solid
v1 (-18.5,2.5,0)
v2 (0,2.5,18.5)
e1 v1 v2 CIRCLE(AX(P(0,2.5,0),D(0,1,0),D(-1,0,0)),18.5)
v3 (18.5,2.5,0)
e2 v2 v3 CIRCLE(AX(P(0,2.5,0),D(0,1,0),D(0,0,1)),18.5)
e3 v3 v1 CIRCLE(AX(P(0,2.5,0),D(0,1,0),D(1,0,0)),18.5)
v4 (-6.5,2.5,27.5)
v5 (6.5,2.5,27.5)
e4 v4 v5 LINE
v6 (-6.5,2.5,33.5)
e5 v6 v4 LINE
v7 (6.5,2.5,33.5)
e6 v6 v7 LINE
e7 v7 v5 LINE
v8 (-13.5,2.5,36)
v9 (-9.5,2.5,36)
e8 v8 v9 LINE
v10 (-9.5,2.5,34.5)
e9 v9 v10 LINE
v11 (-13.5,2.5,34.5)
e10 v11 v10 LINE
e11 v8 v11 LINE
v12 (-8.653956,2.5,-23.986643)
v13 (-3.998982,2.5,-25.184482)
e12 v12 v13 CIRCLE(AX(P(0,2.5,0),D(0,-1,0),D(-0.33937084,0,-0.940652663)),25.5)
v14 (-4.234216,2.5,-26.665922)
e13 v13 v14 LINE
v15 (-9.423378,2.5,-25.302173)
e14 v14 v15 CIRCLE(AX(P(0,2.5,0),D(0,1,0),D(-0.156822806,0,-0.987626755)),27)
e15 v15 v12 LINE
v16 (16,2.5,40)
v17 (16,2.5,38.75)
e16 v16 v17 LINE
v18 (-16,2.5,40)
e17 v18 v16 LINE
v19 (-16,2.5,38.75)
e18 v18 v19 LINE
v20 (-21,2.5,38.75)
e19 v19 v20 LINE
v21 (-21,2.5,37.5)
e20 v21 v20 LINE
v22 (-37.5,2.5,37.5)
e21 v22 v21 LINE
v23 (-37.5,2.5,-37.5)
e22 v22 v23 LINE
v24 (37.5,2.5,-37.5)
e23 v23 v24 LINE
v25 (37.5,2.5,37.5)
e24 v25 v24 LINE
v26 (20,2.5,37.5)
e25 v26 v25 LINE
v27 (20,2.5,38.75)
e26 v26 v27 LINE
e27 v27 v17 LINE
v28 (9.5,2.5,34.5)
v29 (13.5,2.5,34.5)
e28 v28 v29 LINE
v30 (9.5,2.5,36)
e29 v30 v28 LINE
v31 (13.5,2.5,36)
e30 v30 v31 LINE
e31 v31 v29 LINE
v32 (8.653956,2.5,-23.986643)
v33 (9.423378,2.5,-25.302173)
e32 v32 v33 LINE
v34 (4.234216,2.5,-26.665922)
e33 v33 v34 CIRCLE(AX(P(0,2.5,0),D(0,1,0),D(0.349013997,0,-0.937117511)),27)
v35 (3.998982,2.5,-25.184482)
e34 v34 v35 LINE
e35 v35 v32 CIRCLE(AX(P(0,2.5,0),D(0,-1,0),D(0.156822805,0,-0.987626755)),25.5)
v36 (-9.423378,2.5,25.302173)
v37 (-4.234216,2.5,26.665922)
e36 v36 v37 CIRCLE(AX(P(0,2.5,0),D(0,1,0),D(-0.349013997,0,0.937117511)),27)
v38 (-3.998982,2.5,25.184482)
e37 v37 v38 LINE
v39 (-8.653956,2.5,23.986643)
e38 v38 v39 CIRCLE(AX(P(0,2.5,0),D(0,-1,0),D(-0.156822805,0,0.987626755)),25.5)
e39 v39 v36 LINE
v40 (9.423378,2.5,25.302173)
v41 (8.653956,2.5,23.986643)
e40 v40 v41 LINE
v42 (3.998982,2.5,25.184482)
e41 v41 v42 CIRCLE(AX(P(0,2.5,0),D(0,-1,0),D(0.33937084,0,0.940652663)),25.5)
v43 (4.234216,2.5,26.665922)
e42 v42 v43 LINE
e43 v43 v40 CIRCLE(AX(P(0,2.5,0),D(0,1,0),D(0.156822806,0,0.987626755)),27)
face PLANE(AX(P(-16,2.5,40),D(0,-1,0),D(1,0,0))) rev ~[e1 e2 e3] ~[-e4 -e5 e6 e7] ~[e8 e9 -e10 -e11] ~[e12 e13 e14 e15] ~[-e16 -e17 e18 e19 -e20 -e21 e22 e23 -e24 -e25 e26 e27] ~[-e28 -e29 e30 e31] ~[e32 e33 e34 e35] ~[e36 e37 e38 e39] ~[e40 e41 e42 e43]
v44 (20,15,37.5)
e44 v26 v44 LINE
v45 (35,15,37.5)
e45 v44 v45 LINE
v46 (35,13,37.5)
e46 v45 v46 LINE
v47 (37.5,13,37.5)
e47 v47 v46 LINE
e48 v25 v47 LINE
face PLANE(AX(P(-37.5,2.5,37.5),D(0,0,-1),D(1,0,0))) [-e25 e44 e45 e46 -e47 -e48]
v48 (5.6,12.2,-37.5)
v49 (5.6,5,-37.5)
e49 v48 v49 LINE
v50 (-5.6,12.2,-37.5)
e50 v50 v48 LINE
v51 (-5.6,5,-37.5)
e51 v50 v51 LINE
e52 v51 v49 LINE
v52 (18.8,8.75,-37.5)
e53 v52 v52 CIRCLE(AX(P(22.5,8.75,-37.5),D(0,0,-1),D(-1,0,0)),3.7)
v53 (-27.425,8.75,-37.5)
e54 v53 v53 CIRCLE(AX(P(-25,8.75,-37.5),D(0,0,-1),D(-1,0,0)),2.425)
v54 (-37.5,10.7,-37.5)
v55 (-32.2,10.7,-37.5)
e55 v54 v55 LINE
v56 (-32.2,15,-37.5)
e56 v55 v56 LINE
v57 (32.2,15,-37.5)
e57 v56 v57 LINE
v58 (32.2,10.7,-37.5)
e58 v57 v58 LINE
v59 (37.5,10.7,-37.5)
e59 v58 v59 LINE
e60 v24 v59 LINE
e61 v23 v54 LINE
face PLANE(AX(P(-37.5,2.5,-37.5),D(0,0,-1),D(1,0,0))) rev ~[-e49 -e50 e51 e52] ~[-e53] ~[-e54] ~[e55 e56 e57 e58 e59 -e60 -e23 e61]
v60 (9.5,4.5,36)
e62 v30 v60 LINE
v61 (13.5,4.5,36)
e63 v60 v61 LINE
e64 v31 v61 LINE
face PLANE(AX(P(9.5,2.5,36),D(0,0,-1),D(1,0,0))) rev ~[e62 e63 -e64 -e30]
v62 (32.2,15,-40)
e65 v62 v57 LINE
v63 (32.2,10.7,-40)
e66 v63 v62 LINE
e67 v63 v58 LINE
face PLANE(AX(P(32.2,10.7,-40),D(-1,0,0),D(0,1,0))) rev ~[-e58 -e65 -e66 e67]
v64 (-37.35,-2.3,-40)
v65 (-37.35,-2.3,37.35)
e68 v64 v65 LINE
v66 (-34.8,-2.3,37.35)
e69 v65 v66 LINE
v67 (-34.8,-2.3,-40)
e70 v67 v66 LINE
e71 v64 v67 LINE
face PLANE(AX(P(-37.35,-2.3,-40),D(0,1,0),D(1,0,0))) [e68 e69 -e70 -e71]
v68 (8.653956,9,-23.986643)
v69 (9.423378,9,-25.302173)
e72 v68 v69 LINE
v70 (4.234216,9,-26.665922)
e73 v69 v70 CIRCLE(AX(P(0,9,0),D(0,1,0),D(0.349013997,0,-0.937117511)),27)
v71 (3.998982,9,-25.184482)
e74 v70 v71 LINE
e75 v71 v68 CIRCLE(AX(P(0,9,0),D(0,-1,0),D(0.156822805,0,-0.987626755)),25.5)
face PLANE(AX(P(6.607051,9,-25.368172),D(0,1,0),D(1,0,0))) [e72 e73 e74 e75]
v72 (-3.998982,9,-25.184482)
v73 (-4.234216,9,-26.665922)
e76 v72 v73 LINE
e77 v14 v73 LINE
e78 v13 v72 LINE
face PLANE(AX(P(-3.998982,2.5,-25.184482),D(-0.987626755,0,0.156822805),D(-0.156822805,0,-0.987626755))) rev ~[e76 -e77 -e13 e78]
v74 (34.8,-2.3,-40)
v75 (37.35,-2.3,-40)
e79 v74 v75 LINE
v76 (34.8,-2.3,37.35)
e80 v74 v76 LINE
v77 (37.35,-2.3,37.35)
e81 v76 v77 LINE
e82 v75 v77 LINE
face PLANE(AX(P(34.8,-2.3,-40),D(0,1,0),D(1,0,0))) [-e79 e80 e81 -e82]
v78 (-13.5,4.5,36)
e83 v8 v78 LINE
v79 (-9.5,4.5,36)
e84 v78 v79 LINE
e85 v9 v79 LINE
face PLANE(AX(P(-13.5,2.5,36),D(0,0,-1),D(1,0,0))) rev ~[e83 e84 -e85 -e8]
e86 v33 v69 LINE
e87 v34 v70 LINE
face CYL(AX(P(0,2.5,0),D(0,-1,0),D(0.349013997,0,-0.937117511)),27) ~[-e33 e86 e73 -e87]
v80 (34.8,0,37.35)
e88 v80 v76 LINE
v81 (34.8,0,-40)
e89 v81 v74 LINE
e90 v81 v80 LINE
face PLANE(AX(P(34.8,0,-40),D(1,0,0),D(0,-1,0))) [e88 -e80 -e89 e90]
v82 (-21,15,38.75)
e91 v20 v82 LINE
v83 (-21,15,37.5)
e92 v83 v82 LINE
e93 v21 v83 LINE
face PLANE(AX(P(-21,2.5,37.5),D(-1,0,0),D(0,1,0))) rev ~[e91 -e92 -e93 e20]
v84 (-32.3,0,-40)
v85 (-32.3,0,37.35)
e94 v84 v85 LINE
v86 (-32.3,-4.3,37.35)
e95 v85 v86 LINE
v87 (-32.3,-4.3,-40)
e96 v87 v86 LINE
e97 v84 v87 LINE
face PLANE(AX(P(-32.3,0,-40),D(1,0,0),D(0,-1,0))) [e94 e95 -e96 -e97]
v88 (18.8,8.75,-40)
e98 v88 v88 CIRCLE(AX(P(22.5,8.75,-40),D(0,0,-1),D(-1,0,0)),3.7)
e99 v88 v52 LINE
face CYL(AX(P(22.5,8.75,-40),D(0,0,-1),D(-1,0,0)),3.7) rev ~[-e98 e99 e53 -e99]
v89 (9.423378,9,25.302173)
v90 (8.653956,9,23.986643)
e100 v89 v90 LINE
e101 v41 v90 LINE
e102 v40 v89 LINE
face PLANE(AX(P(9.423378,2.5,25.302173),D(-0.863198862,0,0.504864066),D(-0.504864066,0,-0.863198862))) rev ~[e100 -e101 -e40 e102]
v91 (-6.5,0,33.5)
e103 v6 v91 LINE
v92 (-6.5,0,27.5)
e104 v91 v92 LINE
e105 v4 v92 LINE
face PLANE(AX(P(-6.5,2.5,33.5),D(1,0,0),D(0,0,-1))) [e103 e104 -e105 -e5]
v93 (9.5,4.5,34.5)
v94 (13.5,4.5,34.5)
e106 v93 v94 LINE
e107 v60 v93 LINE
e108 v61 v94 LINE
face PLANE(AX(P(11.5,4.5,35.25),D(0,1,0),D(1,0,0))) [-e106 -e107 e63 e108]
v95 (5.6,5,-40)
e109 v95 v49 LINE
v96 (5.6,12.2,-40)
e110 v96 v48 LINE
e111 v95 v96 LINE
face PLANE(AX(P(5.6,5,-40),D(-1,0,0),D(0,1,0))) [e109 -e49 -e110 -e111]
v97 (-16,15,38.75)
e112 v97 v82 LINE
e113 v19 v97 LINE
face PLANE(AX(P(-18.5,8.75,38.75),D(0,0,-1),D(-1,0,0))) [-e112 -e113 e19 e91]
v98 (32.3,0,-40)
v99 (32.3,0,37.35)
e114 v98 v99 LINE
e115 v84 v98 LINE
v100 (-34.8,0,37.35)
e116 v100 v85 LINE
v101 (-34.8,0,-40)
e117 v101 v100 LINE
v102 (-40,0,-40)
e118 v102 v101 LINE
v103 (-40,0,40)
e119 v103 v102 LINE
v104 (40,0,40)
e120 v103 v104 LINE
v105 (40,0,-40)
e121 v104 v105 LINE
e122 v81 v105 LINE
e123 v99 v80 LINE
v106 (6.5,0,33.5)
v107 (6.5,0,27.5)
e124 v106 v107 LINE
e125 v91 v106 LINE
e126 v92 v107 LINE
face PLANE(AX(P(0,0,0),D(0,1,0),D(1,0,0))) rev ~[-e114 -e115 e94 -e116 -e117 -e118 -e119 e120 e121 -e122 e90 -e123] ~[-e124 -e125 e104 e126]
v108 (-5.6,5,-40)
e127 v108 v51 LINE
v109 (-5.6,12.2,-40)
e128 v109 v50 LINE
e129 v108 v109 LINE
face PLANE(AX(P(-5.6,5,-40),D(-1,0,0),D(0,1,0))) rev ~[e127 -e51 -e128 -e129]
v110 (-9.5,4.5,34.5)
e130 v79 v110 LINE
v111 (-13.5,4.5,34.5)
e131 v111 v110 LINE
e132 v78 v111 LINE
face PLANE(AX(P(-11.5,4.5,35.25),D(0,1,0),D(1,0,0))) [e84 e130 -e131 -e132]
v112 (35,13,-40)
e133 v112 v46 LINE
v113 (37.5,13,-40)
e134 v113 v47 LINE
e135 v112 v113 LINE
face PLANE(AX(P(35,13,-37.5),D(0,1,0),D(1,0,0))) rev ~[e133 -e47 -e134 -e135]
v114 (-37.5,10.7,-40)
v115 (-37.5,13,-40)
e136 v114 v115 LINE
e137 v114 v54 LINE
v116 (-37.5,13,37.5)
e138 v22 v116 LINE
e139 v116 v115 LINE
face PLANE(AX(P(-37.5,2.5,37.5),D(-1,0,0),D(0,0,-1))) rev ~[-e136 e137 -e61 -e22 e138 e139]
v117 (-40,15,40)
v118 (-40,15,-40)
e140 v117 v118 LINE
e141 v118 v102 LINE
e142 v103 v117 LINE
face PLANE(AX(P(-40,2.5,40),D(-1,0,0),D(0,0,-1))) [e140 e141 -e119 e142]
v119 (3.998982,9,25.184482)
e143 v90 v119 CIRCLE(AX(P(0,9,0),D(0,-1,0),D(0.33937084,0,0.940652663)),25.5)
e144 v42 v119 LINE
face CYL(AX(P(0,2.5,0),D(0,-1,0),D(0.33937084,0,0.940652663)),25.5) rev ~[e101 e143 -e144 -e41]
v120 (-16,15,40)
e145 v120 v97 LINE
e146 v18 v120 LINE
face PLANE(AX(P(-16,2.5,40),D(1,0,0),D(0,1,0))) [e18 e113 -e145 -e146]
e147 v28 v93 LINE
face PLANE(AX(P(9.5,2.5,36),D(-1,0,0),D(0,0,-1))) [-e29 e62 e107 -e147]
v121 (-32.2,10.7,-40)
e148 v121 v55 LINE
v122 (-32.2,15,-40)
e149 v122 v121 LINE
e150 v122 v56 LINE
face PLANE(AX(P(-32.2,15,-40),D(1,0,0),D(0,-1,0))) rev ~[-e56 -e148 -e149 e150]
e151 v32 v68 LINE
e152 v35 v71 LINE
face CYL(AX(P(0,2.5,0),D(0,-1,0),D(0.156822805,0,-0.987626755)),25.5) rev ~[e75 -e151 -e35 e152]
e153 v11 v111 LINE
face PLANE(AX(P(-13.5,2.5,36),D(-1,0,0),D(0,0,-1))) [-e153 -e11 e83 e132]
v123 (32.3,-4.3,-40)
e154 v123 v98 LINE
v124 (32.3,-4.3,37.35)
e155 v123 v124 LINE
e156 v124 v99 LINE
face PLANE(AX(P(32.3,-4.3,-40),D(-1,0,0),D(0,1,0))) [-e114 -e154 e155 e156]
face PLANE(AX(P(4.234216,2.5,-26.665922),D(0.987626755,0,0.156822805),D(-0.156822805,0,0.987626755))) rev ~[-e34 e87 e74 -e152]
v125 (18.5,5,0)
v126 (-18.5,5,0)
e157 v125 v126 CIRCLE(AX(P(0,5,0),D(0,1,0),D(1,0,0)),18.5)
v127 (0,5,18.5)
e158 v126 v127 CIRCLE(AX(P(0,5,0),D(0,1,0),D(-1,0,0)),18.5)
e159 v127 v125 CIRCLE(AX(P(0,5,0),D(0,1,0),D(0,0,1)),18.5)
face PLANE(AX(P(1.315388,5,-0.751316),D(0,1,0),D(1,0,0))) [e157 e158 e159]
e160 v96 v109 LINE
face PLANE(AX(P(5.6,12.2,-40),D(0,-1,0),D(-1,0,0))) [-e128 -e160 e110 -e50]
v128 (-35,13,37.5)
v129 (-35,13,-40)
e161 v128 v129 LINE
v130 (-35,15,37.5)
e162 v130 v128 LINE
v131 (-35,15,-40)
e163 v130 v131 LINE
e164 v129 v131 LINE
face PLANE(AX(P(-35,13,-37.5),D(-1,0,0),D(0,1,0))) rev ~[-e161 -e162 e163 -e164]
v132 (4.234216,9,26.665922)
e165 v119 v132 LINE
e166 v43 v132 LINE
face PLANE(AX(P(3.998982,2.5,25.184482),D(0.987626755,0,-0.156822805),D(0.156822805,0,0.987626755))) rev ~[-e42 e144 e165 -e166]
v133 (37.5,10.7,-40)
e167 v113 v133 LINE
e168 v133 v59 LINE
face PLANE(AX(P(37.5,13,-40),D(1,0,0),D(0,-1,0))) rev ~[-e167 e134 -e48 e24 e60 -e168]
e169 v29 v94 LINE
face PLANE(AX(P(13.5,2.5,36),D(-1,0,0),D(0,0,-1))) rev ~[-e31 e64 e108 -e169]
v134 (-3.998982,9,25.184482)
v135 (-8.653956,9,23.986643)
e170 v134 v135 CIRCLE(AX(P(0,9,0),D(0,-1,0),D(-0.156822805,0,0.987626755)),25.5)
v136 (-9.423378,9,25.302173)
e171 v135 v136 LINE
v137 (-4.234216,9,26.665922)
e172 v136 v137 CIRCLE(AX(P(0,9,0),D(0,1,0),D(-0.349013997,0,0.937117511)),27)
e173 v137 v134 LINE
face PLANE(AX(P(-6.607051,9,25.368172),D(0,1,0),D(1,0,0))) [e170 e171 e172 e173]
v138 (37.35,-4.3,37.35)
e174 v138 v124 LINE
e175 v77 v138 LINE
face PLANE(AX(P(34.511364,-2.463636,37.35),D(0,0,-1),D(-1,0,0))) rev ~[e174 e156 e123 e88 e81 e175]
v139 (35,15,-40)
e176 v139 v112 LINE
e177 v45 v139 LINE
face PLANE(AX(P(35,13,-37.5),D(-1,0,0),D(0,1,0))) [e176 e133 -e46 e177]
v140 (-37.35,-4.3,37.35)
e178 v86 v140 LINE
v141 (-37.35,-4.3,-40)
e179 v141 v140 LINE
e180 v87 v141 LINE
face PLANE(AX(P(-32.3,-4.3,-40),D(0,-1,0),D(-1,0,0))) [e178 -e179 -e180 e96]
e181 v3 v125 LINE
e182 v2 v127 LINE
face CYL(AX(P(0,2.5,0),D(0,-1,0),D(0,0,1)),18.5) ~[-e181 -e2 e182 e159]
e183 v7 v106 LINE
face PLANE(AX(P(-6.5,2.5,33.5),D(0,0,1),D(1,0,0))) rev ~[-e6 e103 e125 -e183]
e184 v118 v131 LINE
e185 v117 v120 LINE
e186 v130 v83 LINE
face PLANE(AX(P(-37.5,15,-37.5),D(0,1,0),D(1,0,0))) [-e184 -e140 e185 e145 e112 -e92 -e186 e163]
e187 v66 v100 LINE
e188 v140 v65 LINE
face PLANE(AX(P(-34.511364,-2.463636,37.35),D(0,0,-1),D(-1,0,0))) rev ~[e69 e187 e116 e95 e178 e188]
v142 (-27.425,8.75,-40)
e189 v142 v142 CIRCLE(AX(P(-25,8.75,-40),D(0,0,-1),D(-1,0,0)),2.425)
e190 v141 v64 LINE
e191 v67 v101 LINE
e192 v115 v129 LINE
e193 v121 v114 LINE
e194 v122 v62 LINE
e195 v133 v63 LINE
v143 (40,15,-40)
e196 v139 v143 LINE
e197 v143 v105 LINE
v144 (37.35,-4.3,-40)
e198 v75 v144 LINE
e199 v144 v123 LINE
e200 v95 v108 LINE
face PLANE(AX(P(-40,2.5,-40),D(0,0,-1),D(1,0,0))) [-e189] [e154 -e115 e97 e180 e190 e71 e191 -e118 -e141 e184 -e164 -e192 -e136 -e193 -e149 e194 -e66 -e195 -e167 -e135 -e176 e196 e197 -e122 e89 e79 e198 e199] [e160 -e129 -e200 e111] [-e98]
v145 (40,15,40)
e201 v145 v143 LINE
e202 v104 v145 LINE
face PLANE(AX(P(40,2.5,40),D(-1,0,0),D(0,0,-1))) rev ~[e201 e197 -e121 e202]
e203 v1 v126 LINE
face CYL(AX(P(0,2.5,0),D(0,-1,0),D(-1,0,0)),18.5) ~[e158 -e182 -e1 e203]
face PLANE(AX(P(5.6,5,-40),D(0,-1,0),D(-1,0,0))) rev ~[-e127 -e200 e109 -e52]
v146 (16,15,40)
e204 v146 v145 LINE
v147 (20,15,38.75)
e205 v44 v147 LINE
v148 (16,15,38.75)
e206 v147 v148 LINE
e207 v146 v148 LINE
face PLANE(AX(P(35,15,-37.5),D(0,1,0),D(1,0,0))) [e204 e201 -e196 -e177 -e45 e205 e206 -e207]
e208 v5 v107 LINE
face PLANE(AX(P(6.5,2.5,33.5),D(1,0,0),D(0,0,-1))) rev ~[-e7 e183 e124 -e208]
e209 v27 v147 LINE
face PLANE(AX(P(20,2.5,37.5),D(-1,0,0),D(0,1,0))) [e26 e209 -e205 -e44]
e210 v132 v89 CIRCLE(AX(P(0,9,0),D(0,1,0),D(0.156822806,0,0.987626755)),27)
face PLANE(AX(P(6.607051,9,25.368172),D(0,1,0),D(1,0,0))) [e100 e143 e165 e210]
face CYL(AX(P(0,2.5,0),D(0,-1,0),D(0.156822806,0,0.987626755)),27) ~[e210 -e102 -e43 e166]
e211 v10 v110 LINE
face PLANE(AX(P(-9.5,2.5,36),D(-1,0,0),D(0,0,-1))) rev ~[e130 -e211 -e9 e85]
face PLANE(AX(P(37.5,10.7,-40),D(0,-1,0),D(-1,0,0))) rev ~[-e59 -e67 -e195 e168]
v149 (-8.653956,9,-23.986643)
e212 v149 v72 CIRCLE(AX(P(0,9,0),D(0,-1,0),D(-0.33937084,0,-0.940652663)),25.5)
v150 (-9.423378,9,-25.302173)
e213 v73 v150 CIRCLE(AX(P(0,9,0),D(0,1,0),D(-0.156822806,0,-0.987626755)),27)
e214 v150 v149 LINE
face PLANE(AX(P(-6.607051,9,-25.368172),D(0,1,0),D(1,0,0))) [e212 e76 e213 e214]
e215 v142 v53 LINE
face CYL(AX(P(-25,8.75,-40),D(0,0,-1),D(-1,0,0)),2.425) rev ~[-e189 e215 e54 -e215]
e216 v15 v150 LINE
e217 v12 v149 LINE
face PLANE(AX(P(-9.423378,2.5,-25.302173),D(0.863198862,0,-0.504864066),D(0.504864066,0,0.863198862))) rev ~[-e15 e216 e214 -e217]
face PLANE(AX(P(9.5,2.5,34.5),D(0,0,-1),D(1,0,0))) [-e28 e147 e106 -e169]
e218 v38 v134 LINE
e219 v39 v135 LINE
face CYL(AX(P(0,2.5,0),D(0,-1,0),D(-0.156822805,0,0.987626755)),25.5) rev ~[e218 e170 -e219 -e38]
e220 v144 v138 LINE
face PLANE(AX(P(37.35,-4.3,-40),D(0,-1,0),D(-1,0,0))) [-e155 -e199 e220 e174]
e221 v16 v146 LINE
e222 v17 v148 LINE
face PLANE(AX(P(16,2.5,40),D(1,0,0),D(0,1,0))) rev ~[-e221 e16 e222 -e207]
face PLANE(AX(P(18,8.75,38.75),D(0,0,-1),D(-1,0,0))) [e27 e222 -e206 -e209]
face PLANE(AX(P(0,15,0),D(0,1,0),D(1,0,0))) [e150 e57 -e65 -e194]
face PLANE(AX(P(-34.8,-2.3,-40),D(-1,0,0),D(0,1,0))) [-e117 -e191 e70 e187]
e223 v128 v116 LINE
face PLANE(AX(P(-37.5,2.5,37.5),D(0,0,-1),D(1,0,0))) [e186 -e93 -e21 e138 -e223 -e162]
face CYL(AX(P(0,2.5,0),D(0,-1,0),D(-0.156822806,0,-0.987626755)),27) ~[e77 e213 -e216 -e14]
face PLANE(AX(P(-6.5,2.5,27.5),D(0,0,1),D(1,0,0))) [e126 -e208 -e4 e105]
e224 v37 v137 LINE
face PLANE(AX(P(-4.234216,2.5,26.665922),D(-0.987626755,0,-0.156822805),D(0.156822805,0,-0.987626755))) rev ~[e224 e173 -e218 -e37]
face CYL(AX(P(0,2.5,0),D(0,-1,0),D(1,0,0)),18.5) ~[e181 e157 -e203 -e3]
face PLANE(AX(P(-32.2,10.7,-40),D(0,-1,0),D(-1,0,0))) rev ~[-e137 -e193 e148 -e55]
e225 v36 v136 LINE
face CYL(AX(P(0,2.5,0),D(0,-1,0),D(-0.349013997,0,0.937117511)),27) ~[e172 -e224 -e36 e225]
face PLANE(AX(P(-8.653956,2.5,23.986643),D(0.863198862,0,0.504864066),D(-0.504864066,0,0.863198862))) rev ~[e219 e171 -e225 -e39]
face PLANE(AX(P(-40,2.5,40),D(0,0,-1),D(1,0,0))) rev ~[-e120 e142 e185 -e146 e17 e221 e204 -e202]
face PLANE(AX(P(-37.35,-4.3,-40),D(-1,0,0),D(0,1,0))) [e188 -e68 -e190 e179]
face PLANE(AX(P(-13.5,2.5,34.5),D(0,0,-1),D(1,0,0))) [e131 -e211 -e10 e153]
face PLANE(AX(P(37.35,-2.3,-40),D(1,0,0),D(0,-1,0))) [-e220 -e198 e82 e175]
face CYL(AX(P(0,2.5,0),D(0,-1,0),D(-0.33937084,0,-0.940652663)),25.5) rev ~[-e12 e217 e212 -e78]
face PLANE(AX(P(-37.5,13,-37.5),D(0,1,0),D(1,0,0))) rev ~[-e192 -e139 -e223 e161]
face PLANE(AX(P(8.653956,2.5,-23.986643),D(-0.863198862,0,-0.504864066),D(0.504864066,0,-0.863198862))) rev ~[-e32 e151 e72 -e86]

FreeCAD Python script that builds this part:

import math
import FreeCAD as App
import Part
import Sketcher
Q = App.Units.Quantity


def add_polygon(sketch, points):
    """Adds a closed chain of lines whose ends are joined by coincident constraints."""
    first, n = sketch.GeometryCount, len(points)
    for a, b in zip(points, points[1:] + points[:1]):
        sketch.addGeometry(Part.LineSegment(App.Vector(*a, 0), App.Vector(*b, 0)), False)
    for i in range(n):
        sketch.addConstraint(Sketcher.Constraint("Coincident", first + i, 2, first + (i + 1) % n, 1))

doc = App.newDocument("Part")
body = doc.addObject("PartDesign::Body", "Body")

# Sketch on XZ plane
sketch1 = doc.addObject("Sketcher::SketchObject", "Sketch")
body.addObject(sketch1)
sketch1.AttachmentSupport = (doc.XZ_Plane, [""])
sketch1.MapMode = "FlatFace"
add_polygon(sketch1, [(-40, -40), (-40, 40), (40, 40), (40, -40)])  # lines 0-3
sketch1.addConstraint(Sketcher.Constraint("Vertical", 0))
sketch1.addConstraint(Sketcher.Constraint("Horizontal", 1))
sketch1.addConstraint(Sketcher.Constraint("Vertical", 2))
sketch1.addConstraint(Sketcher.Constraint("Horizontal", 3))
sketch1.addConstraint(Sketcher.Constraint("Symmetric", 0, 2, 2, 2, -1, 1))
sketch1.addConstraint(Sketcher.Constraint("Equal", 3, 0))
sketch1.addConstraint(Sketcher.Constraint("DistanceX", 1, 1, 1, 2, Q("80 mm")))
pad1 = doc.addObject("PartDesign::Pad", "Pad")
body.addObject(pad1)
pad1.Profile = sketch1
pad1.Length = 2.5
pad1.Reversed = True

# Sketch on XZ plane
sketch2 = doc.addObject("Sketcher::SketchObject", "Sketch001")
body.addObject(sketch2)
sketch2.AttachmentSupport = (doc.XZ_Plane, [""])
sketch2.MapMode = "FlatFace"
sketch2.AttachmentOffset = App.Placement(App.Vector(0, 0, -2.5), App.Rotation())
add_polygon(sketch2, [(-40, -40), (-40, 40), (40, 40), (40, -40)])  # lines 0-3
add_polygon(sketch2, [(38, 38), (-38, 38), (-38, -38), (38, -38)])  # lines 4-7
sketch2.addConstraint(Sketcher.Constraint("Vertical", 0))
sketch2.addConstraint(Sketcher.Constraint("Horizontal", 1))
sketch2.addConstraint(Sketcher.Constraint("Vertical", 2))
sketch2.addConstraint(Sketcher.Constraint("Horizontal", 3))
sketch2.addConstraint(Sketcher.Constraint("Horizontal", 4))
sketch2.addConstraint(Sketcher.Constraint("Vertical", 5))
sketch2.addConstraint(Sketcher.Constraint("Horizontal", 6))
sketch2.addConstraint(Sketcher.Constraint("Vertical", 7))
sketch2.addConstraint(Sketcher.Constraint("Symmetric", 0, 2, 2, 2, -1, 1))
sketch2.addConstraint(Sketcher.Constraint("Symmetric", 4, 2, 6, 2, -1, 1))
sketch2.addConstraint(Sketcher.Constraint("Equal", 3, 0))
sketch2.addConstraint(Sketcher.Constraint("Equal", 6, 5))
sketch2.addConstraint(Sketcher.Constraint("DistanceX", 1, 1, 1, 2, Q("80 mm")))
sketch2.addConstraint(Sketcher.Constraint("DistanceX", 4, 2, 4, 1, Q("75 mm")))
pad2 = doc.addObject("PartDesign::Pad", "Pad001")
body.addObject(pad2)
pad2.Profile = sketch2
pad2.Length = 12.5
pad2.Reversed = True

# Sketch on XZ plane
sketch3 = doc.addObject("Sketcher::SketchObject", "Sketch002")
body.addObject(sketch3)
sketch3.AttachmentSupport = (doc.XZ_Plane, [""])
sketch3.MapMode = "FlatFace"
sketch3.AttachmentOffset = App.Placement(App.Vector(0, 0, -2.5), App.Rotation())
sketch3.addGeometry(Part.ArcOfCircle(Part.Circle(App.Vector(0, 0, 0), App.Vector(0, 0, 1), 25.5), math.radians(-109.84), math.radians(-99.02)), False)
sketch3.addGeometry(Part.LineSegment(App.Vector(-4, -25.2, 0), App.Vector(-4.2, -26.7, 0)), False)
sketch3.addGeometry(Part.ArcOfCircle(Part.Circle(App.Vector(0, 0, 0), App.Vector(0, 0, 1), 27), math.radians(-110.43), math.radians(-99.02)), False)
sketch3.addGeometry(Part.LineSegment(App.Vector(-9.4, -25.3, 0), App.Vector(-8.7, -24, 0)), False)
sketch3.addGeometry(Part.LineSegment(App.Vector(4.2, -26.7, 0), App.Vector(4, -25.2, 0)), False)
sketch3.addGeometry(Part.ArcOfCircle(Part.Circle(App.Vector(0, 0, 0), App.Vector(0, 0, 1), 25.5), math.radians(-80.98), math.radians(-70.16)), False)
sketch3.addGeometry(Part.LineSegment(App.Vector(8.7, -24, 0), App.Vector(9.4, -25.3, 0)), False)
sketch3.addGeometry(Part.ArcOfCircle(Part.Circle(App.Vector(0, 0, 0), App.Vector(0, 0, 1), 27), math.radians(-80.98), math.radians(-69.57)), False)
sketch3.addGeometry(Part.LineSegment(App.Vector(-8.7, 24, 0), App.Vector(-9.4, 25.3, 0)), False)
sketch3.addGeometry(Part.ArcOfCircle(Part.Circle(App.Vector(0, 0, 0), App.Vector(0, 0, 1), 27), math.radians(99.02), math.radians(110.43)), False)
sketch3.addGeometry(Part.LineSegment(App.Vector(-4.2, 26.7, 0), App.Vector(-4, 25.2, 0)), False)
sketch3.addGeometry(Part.ArcOfCircle(Part.Circle(App.Vector(0, 0, 0), App.Vector(0, 0, 1), 25.5), math.radians(99.02), math.radians(109.84)), False)
sketch3.addGeometry(Part.LineSegment(App.Vector(9.4, 25.3, 0), App.Vector(8.7, 24, 0)), False)
sketch3.addGeometry(Part.ArcOfCircle(Part.Circle(App.Vector(0, 0, 0), App.Vector(0, 0, 1), 25.5), math.radians(70.16), math.radians(80.98)), False)
sketch3.addGeometry(Part.LineSegment(App.Vector(4, 25.2, 0), App.Vector(4.2, 26.7, 0)), False)
sketch3.addGeometry(Part.ArcOfCircle(Part.Circle(App.Vector(0, 0, 0), App.Vector(0, 0, 1), 27), math.radians(69.57), math.radians(80.98)), False)
sketch3.addConstraint(Sketcher.Constraint("Coincident", 0, 2, 1, 1))
sketch3.addConstraint(Sketcher.Constraint("Coincident", 1, 2, 2, 2))
sketch3.addConstraint(Sketcher.Constraint("Coincident", 2, 1, 3, 1))
sketch3.addConstraint(Sketcher.Constraint("Coincident", 3, 2, 0, 1))
sketch3.addConstraint(Sketcher.Constraint("Coincident", 4, 2, 5, 1))
sketch3.addConstraint(Sketcher.Constraint("Coincident", 5, 2, 6, 1))
sketch3.addConstraint(Sketcher.Constraint("Coincident", 6, 2, 7, 2))
sketch3.addConstraint(Sketcher.Constraint("Coincident", 7, 1, 4, 1))
sketch3.addConstraint(Sketcher.Constraint("Coincident", 8, 2, 9, 2))
sketch3.addConstraint(Sketcher.Constraint("Coincident", 9, 1, 10, 1))
sketch3.addConstraint(Sketcher.Constraint("Coincident", 10, 2, 11, 1))
sketch3.addConstraint(Sketcher.Constraint("Coincident", 11, 2, 8, 1))
sketch3.addConstraint(Sketcher.Constraint("Coincident", 12, 2, 13, 1))
sketch3.addConstraint(Sketcher.Constraint("Coincident", 13, 2, 14, 1))
sketch3.addConstraint(Sketcher.Constraint("Coincident", 14, 2, 15, 2))
sketch3.addConstraint(Sketcher.Constraint("Coincident", 15, 1, 12, 1))
sketch3.addConstraint(Sketcher.Constraint("Coincident", 0, 3, -1, 1))
sketch3.addConstraint(Sketcher.Constraint("Coincident", 2, 3, -1, 1))
sketch3.addConstraint(Sketcher.Constraint("Coincident", 5, 3, -1, 1))
sketch3.addConstraint(Sketcher.Constraint("Coincident", 7, 3, -1, 1))
sketch3.addConstraint(Sketcher.Constraint("Coincident", 9, 3, -1, 1))
sketch3.addConstraint(Sketcher.Constraint("Coincident", 11, 3, -1, 1))
sketch3.addConstraint(Sketcher.Constraint("Coincident", 13, 3, -1, 1))
sketch3.addConstraint(Sketcher.Constraint("Coincident", 15, 3, -1, 1))
sketch3.addConstraint(Sketcher.Constraint("Equal", 0, 5))
sketch3.addConstraint(Sketcher.Constraint("Equal", 2, 7))
sketch3.addConstraint(Sketcher.Constraint("Equal", 7, 9))
sketch3.addConstraint(Sketcher.Constraint("Equal", 5, 11))
sketch3.addConstraint(Sketcher.Constraint("Equal", 11, 13))
sketch3.addConstraint(Sketcher.Constraint("Equal", 9, 15))
sketch3.addConstraint(Sketcher.Constraint("Parallel", 6, 8))
sketch3.addConstraint(Sketcher.Constraint("Parallel", 4, 10))
sketch3.addConstraint(Sketcher.Constraint("Parallel", 3, 12))
sketch3.addConstraint(Sketcher.Constraint("Parallel", 1, 14))
sketch3.addConstraint(Sketcher.Constraint("Horizontal", 0, 2, 4, 2))
sketch3.addConstraint(Sketcher.Constraint("Horizontal", 3, 2, 5, 2))
sketch3.addConstraint(Sketcher.Constraint("Horizontal", 2, 1, 6, 2))
sketch3.addConstraint(Sketcher.Constraint("Horizontal", 1, 2, 7, 1))
sketch3.addConstraint(Sketcher.Constraint("Horizontal", 11, 2, 12, 2))
sketch3.addConstraint(Sketcher.Constraint("Horizontal", 10, 2, 13, 2))
sketch3.addConstraint(Sketcher.Constraint("Vertical", 2, 1, 8, 2))
sketch3.addConstraint(Sketcher.Constraint("Vertical", 1, 2, 9, 1))
sketch3.addConstraint(Sketcher.Constraint("Radius", 2, Q("27 mm")))
sketch3.addConstraint(Sketcher.Constraint("Radius", 0, Q("25.5 mm")))
sketch3.addConstraint(Sketcher.Constraint("DistanceX", 0, 2, -1, 1, Q("3.998982 mm")))
sketch3.addConstraint(Sketcher.Constraint("DistanceY", 1, 2, 0, 2, Q("1.48144 mm")))
sketch3.addConstraint(Sketcher.Constraint("DistanceY", 1, 2, 2, 1, Q("1.36375 mm")))
sketch3.addConstraint(Sketcher.Constraint("DistanceX", 2, 1, 3, 2, Q("0.769422 mm")))
pad3 = doc.addObject("PartDesign::Pad", "Pad002")
body.addObject(pad3)
pad3.Profile = sketch3
pad3.Length = 6.5
pad3.Reversed = True

# Sketch on XZ plane
sketch4 = doc.addObject("Sketcher::SketchObject", "Sketch003")
body.addObject(sketch4)
sketch4.AttachmentSupport = (doc.XZ_Plane, [""])
sketch4.MapMode = "FlatFace"
sketch4.AttachmentOffset = App.Placement(App.Vector(0, 0, -2.5), App.Rotation())
add_polygon(sketch4, [(-6, 28), (-6, 34), (6, 34), (6, 28)])  # lines 0-3
sketch4.addConstraint(Sketcher.Constraint("Vertical", 0))
sketch4.addConstraint(Sketcher.Constraint("Horizontal", 1))
sketch4.addConstraint(Sketcher.Constraint("Vertical", 2))
sketch4.addConstraint(Sketcher.Constraint("Horizontal", 3))
sketch4.addConstraint(Sketcher.Constraint("DistanceX", 1, 1, 1, 2, Q("13 mm")))
sketch4.addConstraint(Sketcher.Constraint("DistanceY", 0, 1, 0, 2, Q("6 mm")))
sketch4.addConstraint(Sketcher.Constraint("DistanceX", 0, 2, -1, 1, Q("6.5 mm")))
sketch4.addConstraint(Sketcher.Constraint("DistanceY", -1, 1, 0, 2, Q("33.5 mm")))
pocket1 = doc.addObject("PartDesign::Pocket", "Pocket")
body.addObject(pocket1)
pocket1.Profile = sketch4
pocket1.Type = "ThroughAll"
pocket1.Reversed = True

# Sketch on XY plane
sketch5 = doc.addObject("Sketcher::SketchObject", "Sketch004")
body.addObject(sketch5)
sketch5.AttachmentSupport = (doc.XY_Plane, [""])
sketch5.MapMode = "FlatFace"
sketch5.AttachmentOffset = App.Placement(App.Vector(0, 0, 40), App.Rotation())
add_polygon(sketch5, [(-16, 15), (-16, 2), (16, 2), (16, 15)])  # lines 0-3
sketch5.addConstraint(Sketcher.Constraint("Vertical", 0))
sketch5.addConstraint(Sketcher.Constraint("Horizontal", 1))
sketch5.addConstraint(Sketcher.Constraint("Vertical", 2))
sketch5.addConstraint(Sketcher.Constraint("Horizontal", 3))
sketch5.addConstraint(Sketcher.Constraint("DistanceX", 1, 1, 1, 2, Q("32 mm")))
sketch5.addConstraint(Sketcher.Constraint("DistanceY", 0, 2, 0, 1, Q("12.5 mm")))
sketch5.addConstraint(Sketcher.Constraint("DistanceX", 0, 2, -1, 1, Q("16 mm")))
sketch5.addConstraint(Sketcher.Constraint("DistanceY", -1, 1, 2, 2, Q("15 mm")))
pocket2 = doc.addObject("PartDesign::Pocket", "Pocket001")
body.addObject(pocket2)
pocket2.Profile = sketch5
pocket2.Type = "UpToFirst"

# Sketch on XY plane
sketch6 = doc.addObject("Sketcher::SketchObject", "Sketch005")
body.addObject(sketch6)
sketch6.AttachmentSupport = (doc.XY_Plane, [""])
sketch6.MapMode = "FlatFace"
sketch6.AttachmentOffset = App.Placement(App.Vector(0, 0, -40), App.Rotation())
add_polygon(sketch6, [(6, 12), (6, 5), (-6, 5), (-6, 12)])  # lines 0-3
sketch6.addConstraint(Sketcher.Constraint("Vertical", 0))
sketch6.addConstraint(Sketcher.Constraint("Horizontal", 1))
sketch6.addConstraint(Sketcher.Constraint("Vertical", 2))
sketch6.addConstraint(Sketcher.Constraint("Horizontal", 3))
sketch6.addConstraint(Sketcher.Constraint("DistanceX", 1, 2, 1, 1, Q("11.2 mm")))
sketch6.addConstraint(Sketcher.Constraint("DistanceY", 0, 2, 0, 1, Q("7.2 mm")))
sketch6.addConstraint(Sketcher.Constraint("DistanceY", -1, 1, 0, 2, Q("5 mm")))
sketch6.addConstraint(Sketcher.Constraint("DistanceX", -1, 1, 0, 2, Q("5.6 mm")))
pocket3 = doc.addObject("PartDesign::Pocket", "Pocket002")
body.addObject(pocket3)
pocket3.Profile = sketch6
pocket3.Type = "UpToFirst"
pocket3.Reversed = True

# Sketch on XY plane
sketch7 = doc.addObject("Sketcher::SketchObject", "Sketch006")
body.addObject(sketch7)
sketch7.AttachmentSupport = (doc.XY_Plane, [""])
sketch7.MapMode = "FlatFace"
sketch7.AttachmentOffset = App.Placement(App.Vector(0, 0, -40), App.Rotation())
add_polygon(sketch7, [(-34.8, 0), (-32.3, 0), (-32.3, -4.3), (-37.4, -4.3), (-37.4, -2.3), (-34.8, -2.3)])  # lines 0-5
add_polygon(sketch7, [(32.3, 0), (34.8, 0), (34.8, -2.3), (37.4, -2.3), (37.4, -4.3), (32.3, -4.3)])  # lines 6-11
sketch7.addConstraint(Sketcher.Constraint("Horizontal", 0))
sketch7.addConstraint(Sketcher.Constraint("Vertical", 1))
sketch7.addConstraint(Sketcher.Constraint("Horizontal", 2))
sketch7.addConstraint(Sketcher.Constraint("Vertical", 3))
sketch7.addConstraint(Sketcher.Constraint("Horizontal", 4))
sketch7.addConstraint(Sketcher.Constraint("Vertical", 5))
sketch7.addConstraint(Sketcher.Constraint("Horizontal", 6))
sketch7.addConstraint(Sketcher.Constraint("Vertical", 7))
sketch7.addConstraint(Sketcher.Constraint("Horizontal", 8))
sketch7.addConstraint(Sketcher.Constraint("Vertical", 9))
sketch7.addConstraint(Sketcher.Constraint("Horizontal", 10))
sketch7.addConstraint(Sketcher.Constraint("Vertical", 11))
sketch7.addConstraint(Sketcher.Constraint("Symmetric", 5, 2, 6, 2, -1, 1))
sketch7.addConstraint(Sketcher.Constraint("Symmetric", 3, 2, 8, 2, -2))
sketch7.addConstraint(Sketcher.Constraint("Symmetric", 1, 2, 10, 2, -2))
sketch7.addConstraint(Sketcher.Constraint("PointOnObject", 0, 2, -1))
sketch7.addConstraint(Sketcher.Constraint("DistanceY", 3, 1, 3, 2, Q("2 mm")))
sketch7.addConstraint(Sketcher.Constraint("DistanceX", 0, 1, 0, 2, Q("2.5 mm")))
sketch7.addConstraint(Sketcher.Constraint("DistanceY", 1, 2, 1, 1, Q("4.3 mm")))
sketch7.addConstraint(Sketcher.Constraint("DistanceX", 2, 2, 2, 1, Q("5.05 mm")))
sketch7.addConstraint(Sketcher.Constraint("DistanceX", 0, 2, -1, 1, Q("32.3 mm")))
pad4 = doc.addObject("PartDesign::Pad", "Pad003")
body.addObject(pad4)
pad4.Profile = sketch7
pad4.Length = 77.35

# Sketch on XY plane
sketch8 = doc.addObject("Sketcher::SketchObject", "Sketch007")
body.addObject(sketch8)
sketch8.AttachmentSupport = (doc.XY_Plane, [""])
sketch8.MapMode = "FlatFace"
sketch8.AttachmentOffset = App.Placement(App.Vector(0, 0, -40), App.Rotation())
add_polygon(sketch8, [(32.2, 15), (35, 15), (35, 13), (37.5, 13), (37.5, 10.7), (32.2, 10.7)])  # lines 0-5
sketch8.addConstraint(Sketcher.Constraint("Horizontal", 0))
sketch8.addConstraint(Sketcher.Constraint("Vertical", 1))
sketch8.addConstraint(Sketcher.Constraint("Horizontal", 2))
sketch8.addConstraint(Sketcher.Constraint("Vertical", 3))
sketch8.addConstraint(Sketcher.Constraint("Horizontal", 4))
sketch8.addConstraint(Sketcher.Constraint("Vertical", 5))
sketch8.addConstraint(Sketcher.Constraint("DistanceY", 1, 2, 1, 1, Q("2 mm")))
sketch8.addConstraint(Sketcher.Constraint("DistanceX", 0, 1, 0, 2, Q("2.8 mm")))
sketch8.addConstraint(Sketcher.Constraint("DistanceX", 2, 1, 2, 2, Q("2.5 mm")))
sketch8.addConstraint(Sketcher.Constraint("DistanceY", 3, 2, 3, 1, Q("2.3 mm")))
sketch8.addConstraint(Sketcher.Constraint("DistanceX", -1, 1, 0, 2, Q("35 mm")))
sketch8.addConstraint(Sketcher.Constraint("DistanceY", -1, 1, 0, 2, Q("15 mm")))
pocket4 = doc.addObject("PartDesign::Pocket", "Pocket003")
body.addObject(pocket4)
pocket4.Profile = sketch8
pocket4.Type = "UpToFirst"
pocket4.Reversed = True

# Sketch on XY plane
sketch9 = doc.addObject("Sketcher::SketchObject", "Sketch008")
body.addObject(sketch9)
sketch9.AttachmentSupport = (doc.XY_Plane, [""])
sketch9.MapMode = "FlatFace"
sketch9.AttachmentOffset = App.Placement(App.Vector(0, 0, -40), App.Rotation())
add_polygon(sketch9, [(-35, 15), (-32.2, 15), (-32.2, 10.7), (-37.5, 10.7), (-37.5, 13), (-35, 13)])  # lines 0-5
sketch9.addConstraint(Sketcher.Constraint("Horizontal", 0))
sketch9.addConstraint(Sketcher.Constraint("Vertical", 1))
sketch9.addConstraint(Sketcher.Constraint("Horizontal", 2))
sketch9.addConstraint(Sketcher.Constraint("Vertical", 3))
sketch9.addConstraint(Sketcher.Constraint("Horizontal", 4))
sketch9.addConstraint(Sketcher.Constraint("Vertical", 5))
sketch9.addConstraint(Sketcher.Constraint("DistanceY", 5, 1, 5, 2, Q("2 mm")))
sketch9.addConstraint(Sketcher.Constraint("DistanceX", 0, 1, 0, 2, Q("2.8 mm")))
sketch9.addConstraint(Sketcher.Constraint("DistanceX", 2, 2, 2, 1, Q("5.3 mm")))
sketch9.addConstraint(Sketcher.Constraint("DistanceY", 1, 2, 1, 1, Q("4.3 mm")))
sketch9.addConstraint(Sketcher.Constraint("DistanceY", -1, 1, 0, 2, Q("15 mm")))
sketch9.addConstraint(Sketcher.Constraint("DistanceX", 4, 2, -1, 1, Q("35 mm")))
pocket5 = doc.addObject("PartDesign::Pocket", "Pocket004")
body.addObject(pocket5)
pocket5.Profile = sketch9
pocket5.Type = "UpToFirst"
pocket5.Reversed = True

# Sketch on XY plane
sketch10 = doc.addObject("Sketcher::SketchObject", "Sketch009")
body.addObject(sketch10)
sketch10.AttachmentSupport = (doc.XY_Plane, [""])
sketch10.MapMode = "FlatFace"
sketch10.AttachmentOffset = App.Placement(App.Vector(0, 0, -37.5), App.Rotation())
add_polygon(sketch10, [(35, 15), (35, 13), (37.5, 13), (37.5, 15)])  # lines 0-3
sketch10.addConstraint(Sketcher.Constraint("Vertical", 0))
sketch10.addConstraint(Sketcher.Constraint("Horizontal", 1))
sketch10.addConstraint(Sketcher.Constraint("Vertical", 2))
sketch10.addConstraint(Sketcher.Constraint("Horizontal", 3))
sketch10.addConstraint(Sketcher.Constraint("DistanceY", 0, 2, 0, 1, Q("2 mm")))
sketch10.addConstraint(Sketcher.Constraint("DistanceX", 1, 1, 1, 2, Q("2.5 mm")))
sketch10.addConstraint(Sketcher.Constraint("DistanceX", -1, 1, 0, 2, Q("35 mm")))
sketch10.addConstraint(Sketcher.Constraint("DistanceY", -1, 1, 0, 2, Q("13 mm")))
pad5 = doc.addObject("PartDesign::Pad", "Pad004")
body.addObject(pad5)
pad5.Profile = sketch10
pad5.Type = "UpToFirst"

# Sketch on XY plane
sketch11 = doc.addObject("Sketcher::SketchObject", "Sketch010")
body.addObject(sketch11)
sketch11.AttachmentSupport = (doc.XY_Plane, [""])
sketch11.MapMode = "FlatFace"
sketch11.AttachmentOffset = App.Placement(App.Vector(0, 0, -37.5), App.Rotation())
add_polygon(sketch11, [(-37.5, 15), (-37.5, 13), (-35, 13), (-35, 15)])  # lines 0-3
sketch11.addConstraint(Sketcher.Constraint("Vertical", 0))
sketch11.addConstraint(Sketcher.Constraint("Horizontal", 1))
sketch11.addConstraint(Sketcher.Constraint("Vertical", 2))
sketch11.addConstraint(Sketcher.Constraint("Horizontal", 3))
sketch11.addConstraint(Sketcher.Constraint("DistanceY", 0, 2, 0, 1, Q("2 mm")))
sketch11.addConstraint(Sketcher.Constraint("DistanceX", 1, 1, 1, 2, Q("2.5 mm")))
sketch11.addConstraint(Sketcher.Constraint("DistanceY", -1, 1, 0, 2, Q("13 mm")))
sketch11.addConstraint(Sketcher.Constraint("DistanceX", 1, 2, -1, 1, Q("35 mm")))
pad6 = doc.addObject("PartDesign::Pad", "Pad005")
body.addObject(pad6)
pad6.Profile = sketch11
pad6.Type = "UpToFirst"

# Sketch on XZ plane
sketch12 = doc.addObject("Sketcher::SketchObject", "Sketch011")
body.addObject(sketch12)
sketch12.AttachmentSupport = (doc.XZ_Plane, [""])
sketch12.MapMode = "FlatFace"
sketch12.AttachmentOffset = App.Placement(App.Vector(0, 0, -2.5), App.Rotation())
sketch12.addGeometry(Part.ArcOfCircle(Part.Circle(App.Vector(0, 0, 0), App.Vector(0, 0, 1), 18), math.radians(180), math.radians(360)), False)
sketch12.addGeometry(Part.ArcOfCircle(Part.Circle(App.Vector(0, 0, 0), App.Vector(0, 0, 1), 18), math.radians(90), math.radians(180)), False)
sketch12.addGeometry(Part.ArcOfCircle(Part.Circle(App.Vector(0, 0, 0), App.Vector(0, 0, 1), 18), math.radians(0), math.radians(90)), False)
sketch12.addConstraint(Sketcher.Constraint("Tangent", 0, 1, 1, 2))
sketch12.addConstraint(Sketcher.Constraint("Tangent", 1, 1, 2, 2))
sketch12.addConstraint(Sketcher.Constraint("Tangent", 2, 1, 0, 2))
sketch12.addConstraint(Sketcher.Constraint("Coincident", 0, 3, -1, 1))
sketch12.addConstraint(Sketcher.Constraint("PointOnObject", 0, 1, -1))
sketch12.addConstraint(Sketcher.Constraint("PointOnObject", 1, 1, -2))
sketch12.addConstraint(Sketcher.Constraint("PointOnObject", 2, 1, -1))
sketch12.addConstraint(Sketcher.Constraint("Radius", 0, Q("18.5 mm")))
pad7 = doc.addObject("PartDesign::Pad", "Pad006")
body.addObject(pad7)
pad7.Profile = sketch12
pad7.Length = 2.5
pad7.Reversed = True

# Sketch on XY plane
sketch13 = doc.addObject("Sketcher::SketchObject", "Sketch012")
body.addObject(sketch13)
sketch13.AttachmentSupport = (doc.XY_Plane, [""])
sketch13.MapMode = "FlatFace"
sketch13.AttachmentOffset = App.Placement(App.Vector(0, 0, 37.5), App.Rotation())
add_polygon(sketch13, [(-16, 15), (-16, 2.5), (-21, 2.5), (-21, 15)])  # lines 0-3
add_polygon(sketch13, [(20, 15), (20, 2.5), (16, 2.5), (16, 15)])  # lines 4-7
sketch13.addConstraint(Sketcher.Constraint("Vertical", 0))
sketch13.addConstraint(Sketcher.Constraint("Horizontal", 1))
sketch13.addConstraint(Sketcher.Constraint("Vertical", 2))
sketch13.addConstraint(Sketcher.Constraint("Horizontal", 3))
sketch13.addConstraint(Sketcher.Constraint("Vertical", 4))
sketch13.addConstraint(Sketcher.Constraint("Horizontal", 5))
sketch13.addConstraint(Sketcher.Constraint("Vertical", 6))
sketch13.addConstraint(Sketcher.Constraint("Horizontal", 7))
sketch13.addConstraint(Sketcher.Constraint("Symmetric", 0, 2, 5, 2, -2))
sketch13.addConstraint(Sketcher.Constraint("Horizontal", 3, 2, 6, 2))
sketch13.addConstraint(Sketcher.Constraint("DistanceX", 1, 2, 1, 1, Q("5 mm")))
sketch13.addConstraint(Sketcher.Constraint("DistanceX", 5, 2, 5, 1, Q("4 mm")))
sketch13.addConstraint(Sketcher.Constraint("DistanceY", 0, 2, 0, 1, Q("12.5 mm")))
sketch13.addConstraint(Sketcher.Constraint("DistanceX", 0, 2, -1, 1, Q("16 mm")))
sketch13.addConstraint(Sketcher.Constraint("DistanceY", -1, 1, 2, 2, Q("15 mm")))
pocket6 = doc.addObject("PartDesign::Pocket", "Pocket005")
body.addObject(pocket6)
pocket6.Profile = sketch13
pocket6.Length = 1.25
pocket6.Reversed = True

# Sketch on XZ plane
sketch14 = doc.addObject("Sketcher::SketchObject", "Sketch013")
body.addObject(sketch14)
sketch14.AttachmentSupport = (doc.XZ_Plane, [""])
sketch14.MapMode = "FlatFace"
sketch14.AttachmentOffset = App.Placement(App.Vector(0, 0, -2.5), App.Rotation())
add_polygon(sketch14, [(-13.5, 34.5), (-13.5, 36), (-9.5, 36), (-9.5, 34.5)])  # lines 0-3
add_polygon(sketch14, [(9.5, 34.5), (9.5, 36), (13.5, 36), (13.5, 34.5)])  # lines 4-7
sketch14.addConstraint(Sketcher.Constraint("Vertical", 0))
sketch14.addConstraint(Sketcher.Constraint("Horizontal", 1))
sketch14.addConstraint(Sketcher.Constraint("Vertical", 2))
sketch14.addConstraint(Sketcher.Constraint("Horizontal", 3))
sketch14.addConstraint(Sketcher.Constraint("Vertical", 4))
sketch14.addConstraint(Sketcher.Constraint("Horizontal", 5))
sketch14.addConstraint(Sketcher.Constraint("Vertical", 6))
sketch14.addConstraint(Sketcher.Constraint("Horizontal", 7))
sketch14.addConstraint(Sketcher.Constraint("Symmetric", 1, 2, 4, 2, -2))
sketch14.addConstraint(Sketcher.Constraint("Symmetric", 3, 2, 6, 2, -2))
sketch14.addConstraint(Sketcher.Constraint("DistanceX", 1, 1, 1, 2, Q("4 mm")))
sketch14.addConstraint(Sketcher.Constraint("DistanceY", 0, 1, 0, 2, Q("1.5 mm")))
sketch14.addConstraint(Sketcher.Constraint("DistanceY", -1, 1, 0, 2, Q("36 mm")))
sketch14.addConstraint(Sketcher.Constraint("DistanceX", 1, 2, 4, 2, Q("19 mm")))
pad8 = doc.addObject("PartDesign::Pad", "Pad007")
body.addObject(pad8)
pad8.Profile = sketch14
pad8.Length = 2
pad8.Reversed = True

# Sketch on XY plane
sketch15 = doc.addObject("Sketcher::SketchObject", "Sketch014")
body.addObject(sketch15)
sketch15.AttachmentSupport = (doc.XY_Plane, [""])
sketch15.MapMode = "FlatFace"
sketch15.AttachmentOffset = App.Placement(App.Vector(0, 0, -40), App.Rotation())
sketch15.addGeometry(Part.Circle(App.Vector(22.5, 8.8, 0), App.Vector(0, 0, 1), 3.7), False)
sketch15.addConstraint(Sketcher.Constraint("Diameter", 0, Q("7.4 mm")))
sketch15.addConstraint(Sketcher.Constraint("DistanceX", -1, 1, 0, 3, Q("22.5 mm")))
sketch15.addConstraint(Sketcher.Constraint("DistanceY", -1, 1, 0, 3, Q("8.75 mm")))
pocket7 = doc.addObject("PartDesign::Pocket", "Pocket006")
body.addObject(pocket7)
pocket7.Profile = sketch15
pocket7.Type = "UpToFirst"
pocket7.Reversed = True

# Sketch on XY plane
sketch16 = doc.addObject("Sketcher::SketchObject", "Sketch015")
body.addObject(sketch16)
sketch16.AttachmentSupport = (doc.XY_Plane, [""])
sketch16.MapMode = "FlatFace"
sketch16.AttachmentOffset = App.Placement(App.Vector(0, 0, -40), App.Rotation())
sketch16.addGeometry(Part.Circle(App.Vector(-25, 8.8, 0), App.Vector(0, 0, 1), 2.4), False)
sketch16.addConstraint(Sketcher.Constraint("Diameter", 0, Q("4.85 mm")))
sketch16.addConstraint(Sketcher.Constraint("DistanceX", 0, 3, -1, 1, Q("25 mm")))
sketch16.addConstraint(Sketcher.Constraint("DistanceY", -1, 1, 0, 3, Q("8.75 mm")))
pocket8 = doc.addObject("PartDesign::Pocket", "Pocket007")
body.addObject(pocket8)
pocket8.Profile = sketch16
pocket8.Type = "UpToFirst"
pocket8.Reversed = True

doc.recompute()
